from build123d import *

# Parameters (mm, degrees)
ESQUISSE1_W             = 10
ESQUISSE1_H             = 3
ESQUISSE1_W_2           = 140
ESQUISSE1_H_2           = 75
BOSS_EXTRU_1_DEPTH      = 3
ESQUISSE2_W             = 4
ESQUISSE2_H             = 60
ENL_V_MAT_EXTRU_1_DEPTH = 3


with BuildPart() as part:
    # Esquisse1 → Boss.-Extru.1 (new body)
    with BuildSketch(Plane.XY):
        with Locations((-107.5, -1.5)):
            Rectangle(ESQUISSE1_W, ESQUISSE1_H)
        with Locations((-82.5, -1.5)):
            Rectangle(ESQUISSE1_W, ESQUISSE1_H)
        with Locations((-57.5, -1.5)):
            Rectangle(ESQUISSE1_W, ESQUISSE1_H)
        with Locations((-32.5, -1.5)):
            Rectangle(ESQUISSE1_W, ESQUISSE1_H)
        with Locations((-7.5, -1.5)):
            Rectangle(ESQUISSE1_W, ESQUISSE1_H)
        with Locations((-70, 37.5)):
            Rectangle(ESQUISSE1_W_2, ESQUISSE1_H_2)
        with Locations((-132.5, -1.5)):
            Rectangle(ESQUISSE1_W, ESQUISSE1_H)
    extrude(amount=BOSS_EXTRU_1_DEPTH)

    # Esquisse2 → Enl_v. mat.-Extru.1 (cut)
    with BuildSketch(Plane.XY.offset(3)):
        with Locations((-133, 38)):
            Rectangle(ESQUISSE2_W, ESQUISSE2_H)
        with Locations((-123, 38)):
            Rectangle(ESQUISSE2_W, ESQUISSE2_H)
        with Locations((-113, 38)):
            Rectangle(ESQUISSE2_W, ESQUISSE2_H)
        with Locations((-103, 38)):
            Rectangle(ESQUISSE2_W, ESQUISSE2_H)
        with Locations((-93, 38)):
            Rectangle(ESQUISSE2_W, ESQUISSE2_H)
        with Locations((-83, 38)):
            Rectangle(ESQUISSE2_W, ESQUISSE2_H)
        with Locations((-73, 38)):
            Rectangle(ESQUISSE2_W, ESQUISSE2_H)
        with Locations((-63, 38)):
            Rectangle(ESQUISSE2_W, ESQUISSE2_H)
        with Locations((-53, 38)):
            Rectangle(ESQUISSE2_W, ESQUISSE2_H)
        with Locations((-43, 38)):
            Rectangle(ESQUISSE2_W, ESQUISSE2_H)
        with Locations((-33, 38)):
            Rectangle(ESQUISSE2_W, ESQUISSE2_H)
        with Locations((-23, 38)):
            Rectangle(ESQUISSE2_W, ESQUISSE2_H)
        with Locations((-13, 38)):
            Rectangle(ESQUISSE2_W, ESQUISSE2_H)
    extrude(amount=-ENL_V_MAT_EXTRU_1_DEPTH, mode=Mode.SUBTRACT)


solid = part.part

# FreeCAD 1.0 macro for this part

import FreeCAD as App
import Part
import Sketcher

V = App.Vector

doc = App.newDocument("Part")
body = doc.addObject("PartDesign::Body", "Body")

# Sketch on XY plane
sketch1 = body.newObject("Sketcher::SketchObject", "Sketch")
sketch1.AttachmentSupport = (doc.getObject("XY_Plane"), [""])
sketch1.MapMode = "FlatFace"
sketch1.addGeometry([
    Part.LineSegment(V(-112.5, 0, 0), V(-112.5, -3, 0)),  # 0
    Part.LineSegment(V(-112.5, -3, 0), V(-102.5, -3, 0)),  # 1
    Part.LineSegment(V(-102.5, -3, 0), V(-102.5, 0, 0)),  # 2
    Part.LineSegment(V(-102.5, 0, 0), V(-87.5, 0, 0)),  # 3
    Part.LineSegment(V(-87.5, 0, 0), V(-87.5, -3, 0)),  # 4
    Part.LineSegment(V(-87.5, -3, 0), V(-77.5, -3, 0)),  # 5
    Part.LineSegment(V(-77.5, -3, 0), V(-77.5, 0, 0)),  # 6
    Part.LineSegment(V(-77.5, 0, 0), V(-62.5, 0, 0)),  # 7
    Part.LineSegment(V(-62.5, 0, 0), V(-62.5, -3, 0)),  # 8
    Part.LineSegment(V(-62.5, -3, 0), V(-52.5, -3, 0)),  # 9
    Part.LineSegment(V(-52.5, -3, 0), V(-52.5, 0, 0)),  # 10
    Part.LineSegment(V(-52.5, 0, 0), V(-37.5, 0, 0)),  # 11
    Part.LineSegment(V(-37.5, 0, 0), V(-37.5, -3, 0)),  # 12
    Part.LineSegment(V(-37.5, -3, 0), V(-27.5, -3, 0)),  # 13
    Part.LineSegment(V(-27.5, -3, 0), V(-27.5, 0, 0)),  # 14
    Part.LineSegment(V(-27.5, 0, 0), V(-12.5, 0, 0)),  # 15
    Part.LineSegment(V(-12.5, 0, 0), V(-12.5, -3, 0)),  # 16
    Part.LineSegment(V(-12.5, -3, 0), V(-2.5, -3, 0)),  # 17
    Part.LineSegment(V(-2.5, -3, 0), V(-2.5, 0, 0)),  # 18
    Part.LineSegment(V(-2.5, 0, 0), V(0, 0, 0)),  # 19
    Part.LineSegment(V(0, 0, 0), V(0, 75, 0)),  # 20
    Part.LineSegment(V(0, 75, 0), V(-140, 75, 0)),  # 21
    Part.LineSegment(V(-140, 75, 0), V(-140, 0, 0)),  # 22
    Part.LineSegment(V(-140, 0, 0), V(-137.5, 0, 0)),  # 23
    Part.LineSegment(V(-137.5, 0, 0), V(-137.5, -3, 0)),  # 24
    Part.LineSegment(V(-137.5, -3, 0), V(-127.5, -3, 0)),  # 25
    Part.LineSegment(V(-127.5, -3, 0), V(-127.5, 0, 0)),  # 26
    Part.LineSegment(V(-127.5, 0, 0), V(-112.5, 0, 0)),  # 27
], False)
sketch1.addConstraint([
    Sketcher.Constraint("Coincident", 0, 2, 1, 1),
    Sketcher.Constraint("Coincident", 1, 2, 2, 1),
    Sketcher.Constraint("Coincident", 2, 2, 3, 1),
    Sketcher.Constraint("Coincident", 3, 2, 4, 1),
    Sketcher.Constraint("Coincident", 4, 2, 5, 1),
    Sketcher.Constraint("Coincident", 5, 2, 6, 1),
    Sketcher.Constraint("Coincident", 6, 2, 7, 1),
    Sketcher.Constraint("Coincident", 7, 2, 8, 1),
    Sketcher.Constraint("Coincident", 8, 2, 9, 1),
    Sketcher.Constraint("Coincident", 9, 2, 10, 1),
    Sketcher.Constraint("Coincident", 10, 2, 11, 1),
    Sketcher.Constraint("Coincident", 11, 2, 12, 1),
    Sketcher.Constraint("Coincident", 12, 2, 13, 1),
    Sketcher.Constraint("Coincident", 13, 2, 14, 1),
    Sketcher.Constraint("Coincident", 14, 2, 15, 1),
    Sketcher.Constraint("Coincident", 15, 2, 16, 1),
    Sketcher.Constraint("Coincident", 16, 2, 17, 1),
    Sketcher.Constraint("Coincident", 17, 2, 18, 1),
    Sketcher.Constraint("Coincident", 18, 2, 19, 1),
    Sketcher.Constraint("Coincident", 19, 2, 20, 1),
    Sketcher.Constraint("Coincident", 20, 2, 21, 1),
    Sketcher.Constraint("Coincident", 21, 2, 22, 1),
    Sketcher.Constraint("Coincident", 22, 2, 23, 1),
    Sketcher.Constraint("Coincident", 23, 2, 24, 1),
    Sketcher.Constraint("Coincident", 24, 2, 25, 1),
    Sketcher.Constraint("Coincident", 25, 2, 26, 1),
    Sketcher.Constraint("Coincident", 26, 2, 27, 1),
    Sketcher.Constraint("Coincident", 27, 2, 0, 1),
    Sketcher.Constraint("Vertical", 0),
    Sketcher.Constraint("Horizontal", 1),
    Sketcher.Constraint("Vertical", 2),
    Sketcher.Constraint("Horizontal", 3),
    Sketcher.Constraint("Vertical", 4),
    Sketcher.Constraint("Horizontal", 5),
    Sketcher.Constraint("Vertical", 6),
    Sketcher.Constraint("Horizontal", 7),
    Sketcher.Constraint("Vertical", 8),
    Sketcher.Constraint("Horizontal", 9),
    Sketcher.Constraint("Vertical", 10),
    Sketcher.Constraint("Horizontal", 11),
    Sketcher.Constraint("Vertical", 12),
    Sketcher.Constraint("Horizontal", 13),
    Sketcher.Constraint("Vertical", 14),
    Sketcher.Constraint("Horizontal", 15),
    Sketcher.Constraint("Vertical", 16),
    Sketcher.Constraint("Horizontal", 17),
    Sketcher.Constraint("Vertical", 18),
    Sketcher.Constraint("Horizontal", 19),
    Sketcher.Constraint("Vertical", 20),
    Sketcher.Constraint("Horizontal", 21),
    Sketcher.Constraint("Vertical", 22),
    Sketcher.Constraint("Horizontal", 23),
    Sketcher.Constraint("Vertical", 24),
    Sketcher.Constraint("Horizontal", 25),
    Sketcher.Constraint("Vertical", 26),
    Sketcher.Constraint("Horizontal", 27),
    Sketcher.Constraint("Coincident", 19, 2, -1, 1),
    Sketcher.Constraint("PointOnObject", 2, 2, -1),
    Sketcher.Constraint("PointOnObject", 6, 2, -1),
    Sketcher.Constraint("PointOnObject", 10, 2, -1),
    Sketcher.Constraint("PointOnObject", 14, 2, -1),
    Sketcher.Constraint("PointOnObject", 22, 2, -1),
    Sketcher.Constraint("PointOnObject", 26, 2, -1),
    Sketcher.Constraint("Horizontal", 1, 2, 4, 2),
    Sketcher.Constraint("Horizontal", 5, 2, 8, 2),
    Sketcher.Constraint("Horizontal", 9, 2, 12, 2),
    Sketcher.Constraint("Horizontal", 13, 2, 16, 2),
    Sketcher.Constraint("Horizontal", 17, 2, 24, 2),
    Sketcher.Constraint("Equal", 1, 5),
    Sketcher.Constraint("Equal", 3, 7),
    Sketcher.Constraint("Equal", 5, 9),
    Sketcher.Constraint("Equal", 7, 11),
    Sketcher.Constraint("Equal", 9, 13),
    Sketcher.Constraint("Equal", 11, 15),
    Sketcher.Constraint("Equal", 13, 17),
    Sketcher.Constraint("Equal", 19, 23),
    Sketcher.Constraint("Equal", 17, 25),
    Sketcher.Constraint("Equal", 15, 27),
    Sketcher.Constraint("DistanceX", 1, 1, 1, 2, 10.0),
    Sketcher.Constraint("DistanceX", 3, 1, 3, 2, 15.0),
    Sketcher.Constraint("DistanceX", 21, 2, 21, 1, 140.0),
    Sketcher.Constraint("DistanceY", 0, 2, 0, 1, 3.0),
    Sketcher.Constraint("DistanceY", 20, 1, 20, 2, 75.0),
])
pad1 = body.newObject("PartDesign::Pad", "Pad")
pad1.Profile = sketch1
pad1.Length = 3

# Sketch on XY plane
sketch2 = body.newObject("Sketcher::SketchObject", "Sketch001")
sketch2.AttachmentSupport = (doc.getObject("XY_Plane"), [""])
sketch2.MapMode = "FlatFace"
sketch2.AttachmentOffset = App.Placement(V(0, 0, 3), App.Rotation())
sketch2.addGeometry([
    Part.LineSegment(V(-135, 68, 0), V(-135, 8, 0)),  # 0
    Part.LineSegment(V(-135, 8, 0), V(-131, 8, 0)),  # 1
    Part.LineSegment(V(-131, 8, 0), V(-131, 68, 0)),  # 2
    Part.LineSegment(V(-131, 68, 0), V(-135, 68, 0)),  # 3
    Part.LineSegment(V(-125, 68, 0), V(-125, 8, 0)),  # 4
    Part.LineSegment(V(-125, 8, 0), V(-121, 8, 0)),  # 5
    Part.LineSegment(V(-121, 8, 0), V(-121, 68, 0)),  # 6
    Part.LineSegment(V(-121, 68, 0), V(-125, 68, 0)),  # 7
    Part.LineSegment(V(-115, 68, 0), V(-115, 8, 0)),  # 8
    Part.LineSegment(V(-115, 8, 0), V(-111, 8, 0)),  # 9
    Part.LineSegment(V(-111, 8, 0), V(-111, 68, 0)),  # 10
    Part.LineSegment(V(-111, 68, 0), V(-115, 68, 0)),  # 11
    Part.LineSegment(V(-105, 68, 0), V(-105, 8, 0)),  # 12
    Part.LineSegment(V(-105, 8, 0), V(-101, 8, 0)),  # 13
    Part.LineSegment(V(-101, 8, 0), V(-101, 68, 0)),  # 14
    Part.LineSegment(V(-101, 68, 0), V(-105, 68, 0)),  # 15
    Part.LineSegment(V(-95, 68, 0), V(-95, 8, 0)),  # 16
    Part.LineSegment(V(-95, 8, 0), V(-91, 8, 0)),  # 17
    Part.LineSegment(V(-91, 8, 0), V(-91, 68, 0)),  # 18
    Part.LineSegment(V(-91, 68, 0), V(-95, 68, 0)),  # 19
    Part.LineSegment(V(-85, 68, 0), V(-85, 8, 0)),  # 20
    Part.LineSegment(V(-85, 8, 0), V(-81, 8, 0)),  # 21
    Part.LineSegment(V(-81, 8, 0), V(-81, 68, 0)),  # 22
    Part.LineSegment(V(-81, 68, 0), V(-85, 68, 0)),  # 23
    Part.LineSegment(V(-75, 68, 0), V(-75, 8, 0)),  # 24
    Part.LineSegment(V(-75, 8, 0), V(-71, 8, 0)),  # 25
    Part.LineSegment(V(-71, 8, 0), V(-71, 68, 0)),  # 26
    Part.LineSegment(V(-71, 68, 0), V(-75, 68, 0)),  # 27
    Part.LineSegment(V(-65, 68, 0), V(-65, 8, 0)),  # 28
    Part.LineSegment(V(-65, 8, 0), V(-61, 8, 0)),  # 29
    Part.LineSegment(V(-61, 8, 0), V(-61, 68, 0)),  # 30
    Part.LineSegment(V(-61, 68, 0), V(-65, 68, 0)),  # 31
    Part.LineSegment(V(-55, 68, 0), V(-55, 8, 0)),  # 32
    Part.LineSegment(V(-55, 8, 0), V(-51, 8, 0)),  # 33
    Part.LineSegment(V(-51, 8, 0), V(-51, 68, 0)),  # 34
    Part.LineSegment(V(-51, 68, 0), V(-55, 68, 0)),  # 35
    Part.LineSegment(V(-45, 68, 0), V(-45, 8, 0)),  # 36
    Part.LineSegment(V(-45, 8, 0), V(-41, 8, 0)),  # 37
    Part.LineSegment(V(-41, 8, 0), V(-41, 68, 0)),  # 38
    Part.LineSegment(V(-41, 68, 0), V(-45, 68, 0)),  # 39
    Part.LineSegment(V(-35, 68, 0), V(-35, 8, 0)),  # 40
    Part.LineSegment(V(-35, 8, 0), V(-31, 8, 0)),  # 41
    Part.LineSegment(V(-31, 8, 0), V(-31, 68, 0)),  # 42
    Part.LineSegment(V(-31, 68, 0), V(-35, 68, 0)),  # 43
    Part.LineSegment(V(-25, 68, 0), V(-25, 8, 0)),  # 44
    Part.LineSegment(V(-25, 8, 0), V(-21, 8, 0)),  # 45
    Part.LineSegment(V(-21, 8, 0), V(-21, 68, 0)),  # 46
    Part.LineSegment(V(-21, 68, 0), V(-25, 68, 0)),  # 47
    Part.LineSegment(V(-15, 68, 0), V(-15, 8, 0)),  # 48
    Part.LineSegment(V(-15, 8, 0), V(-11, 8, 0)),  # 49
    Part.LineSegment(V(-11, 8, 0), V(-11, 68, 0)),  # 50
    Part.LineSegment(V(-11, 68, 0), V(-15, 68, 0)),  # 51
], False)
sketch2.addConstraint([
    Sketcher.Constraint("Coincident", 0, 2, 1, 1),
    Sketcher.Constraint("Coincident", 1, 2, 2, 1),
    Sketcher.Constraint("Coincident", 2, 2, 3, 1),
    Sketcher.Constraint("Coincident", 3, 2, 0, 1),
    Sketcher.Constraint("Coincident", 4, 2, 5, 1),
    Sketcher.Constraint("Coincident", 5, 2, 6, 1),
    Sketcher.Constraint("Coincident", 6, 2, 7, 1),
    Sketcher.Constraint("Coincident", 7, 2, 4, 1),
    Sketcher.Constraint("Coincident", 8, 2, 9, 1),
    Sketcher.Constraint("Coincident", 9, 2, 10, 1),
    Sketcher.Constraint("Coincident", 10, 2, 11, 1),
    Sketcher.Constraint("Coincident", 11, 2, 8, 1),
    Sketcher.Constraint("Coincident", 12, 2, 13, 1),
    Sketcher.Constraint("Coincident", 13, 2, 14, 1),
    Sketcher.Constraint("Coincident", 14, 2, 15, 1),
    Sketcher.Constraint("Coincident", 15, 2, 12, 1),
    Sketcher.Constraint("Coincident", 16, 2, 17, 1),
    Sketcher.Constraint("Coincident", 17, 2, 18, 1),
    Sketcher.Constraint("Coincident", 18, 2, 19, 1),
    Sketcher.Constraint("Coincident", 19, 2, 16, 1),
    Sketcher.Constraint("Coincident", 20, 2, 21, 1),
    Sketcher.Constraint("Coincident", 21, 2, 22, 1),
    Sketcher.Constraint("Coincident", 22, 2, 23, 1),
    Sketcher.Constraint("Coincident", 23, 2, 20, 1),
    Sketcher.Constraint("Coincident", 24, 2, 25, 1),
    Sketcher.Constraint("Coincident", 25, 2, 26, 1),
    Sketcher.Constraint("Coincident", 26, 2, 27, 1),
    Sketcher.Constraint("Coincident", 27, 2, 24, 1),
    Sketcher.Constraint("Coincident", 28, 2, 29, 1),
    Sketcher.Constraint("Coincident", 29, 2, 30, 1),
    Sketcher.Constraint("Coincident", 30, 2, 31, 1),
    Sketcher.Constraint("Coincident", 31, 2, 28, 1),
    Sketcher.Constraint("Coincident", 32, 2, 33, 1),
    Sketcher.Constraint("Coincident", 33, 2, 34, 1),
    Sketcher.Constraint("Coincident", 34, 2, 35, 1),
    Sketcher.Constraint("Coincident", 35, 2, 32, 1),
    Sketcher.Constraint("Coincident", 36, 2, 37, 1),
    Sketcher.Constraint("Coincident", 37, 2, 38, 1),
    Sketcher.Constraint("Coincident", 38, 2, 39, 1),
    Sketcher.Constraint("Coincident", 39, 2, 36, 1),
    Sketcher.Constraint("Coincident", 40, 2, 41, 1),
    Sketcher.Constraint("Coincident", 41, 2, 42, 1),
    Sketcher.Constraint("Coincident", 42, 2, 43, 1),
    Sketcher.Constraint("Coincident", 43, 2, 40, 1),
    Sketcher.Constraint("Coincident", 44, 2, 45, 1),
    Sketcher.Constraint("Coincident", 45, 2, 46, 1),
    Sketcher.Constraint("Coincident", 46, 2, 47, 1),
    Sketcher.Constraint("Coincident", 47, 2, 44, 1),
    Sketcher.Constraint("Coincident", 48, 2, 49, 1),
    Sketcher.Constraint("Coincident", 49, 2, 50, 1),
    Sketcher.Constraint("Coincident", 50, 2, 51, 1),
    Sketcher.Constraint("Coincident", 51, 2, 48, 1),
    Sketcher.Constraint("Vertical", 0),
    Sketcher.Constraint("Horizontal", 1),
    Sketcher.Constraint("Vertical", 2),
    Sketcher.Constraint("Horizontal", 3),
    Sketcher.Constraint("Vertical", 4),
    Sketcher.Constraint("Horizontal", 5),
    Sketcher.Constraint("Vertical", 6),
    Sketcher.Constraint("Horizontal", 7),
    Sketcher.Constraint("Vertical", 8),
    Sketcher.Constraint("Horizontal", 9),
    Sketcher.Constraint("Vertical", 10),
    Sketcher.Constraint("Horizontal", 11),
    Sketcher.Constraint("Vertical", 12),
    Sketcher.Constraint("Horizontal", 13),
    Sketcher.Constraint("Vertical", 14),
    Sketcher.Constraint("Horizontal", 15),
    Sketcher.Constraint("Vertical", 16),
    Sketcher.Constraint("Horizontal", 17),
    Sketcher.Constraint("Vertical", 18),
    Sketcher.Constraint("Horizontal", 19),
    Sketcher.Constraint("Vertical", 20),
    Sketcher.Constraint("Horizontal", 21),
    Sketcher.Constraint("Vertical", 22),
    Sketcher.Constraint("Horizontal", 23),
    Sketcher.Constraint("Vertical", 24),
    Sketcher.Constraint("Horizontal", 25),
    Sketcher.Constraint("Vertical", 26),
    Sketcher.Constraint("Horizontal", 27),
    Sketcher.Constraint("Vertical", 28),
    Sketcher.Constraint("Horizontal", 29),
    Sketcher.Constraint("Vertical", 30),
    Sketcher.Constraint("Horizontal", 31),
    Sketcher.Constraint("Vertical", 32),
    Sketcher.Constraint("Horizontal", 33),
    Sketcher.Constraint("Vertical", 34),
    Sketcher.Constraint("Horizontal", 35),
    Sketcher.Constraint("Vertical", 36),
    Sketcher.Constraint("Horizontal", 37),
    Sketcher.Constraint("Vertical", 38),
    Sketcher.Constraint("Horizontal", 39),
    Sketcher.Constraint("Vertical", 40),
    Sketcher.Constraint("Horizontal", 41),
    Sketcher.Constraint("Vertical", 42),
    Sketcher.Constraint("Horizontal", 43),
    Sketcher.Constraint("Vertical", 44),
    Sketcher.Constraint("Horizontal", 45),
    Sketcher.Constraint("Vertical", 46),
    Sketcher.Constraint("Horizontal", 47),
    Sketcher.Constraint("Vertical", 48),
    Sketcher.Constraint("Horizontal", 49),
    Sketcher.Constraint("Vertical", 50),
    Sketcher.Constraint("Horizontal", 51),
    Sketcher.Constraint("Horizontal", 1, 2, 4, 2),
    Sketcher.Constraint("Horizontal", 3, 2, 6, 2),
    Sketcher.Constraint("Horizontal", 5, 2, 8, 2),
    Sketcher.Constraint("Horizontal", 7, 2, 10, 2),
    Sketcher.Constraint("Horizontal", 9, 2, 12, 2),
    Sketcher.Constraint("Horizontal", 11, 2, 14, 2),
    Sketcher.Constraint("Horizontal", 13, 2, 16, 2),
    Sketcher.Constraint("Horizontal", 15, 2, 18, 2),
    Sketcher.Constraint("Horizontal", 17, 2, 20, 2),
    Sketcher.Constraint("Horizontal", 19, 2, 22, 2),
    Sketcher.Constraint("Horizontal", 21, 2, 24, 2),
    Sketcher.Constraint("Horizontal", 23, 2, 26, 2),
    Sketcher.Constraint("Horizontal", 25, 2, 28, 2),
    Sketcher.Constraint("Horizontal", 27, 2, 30, 2),
    Sketcher.Constraint("Horizontal", 29, 2, 32, 2),
    Sketcher.Constraint("Horizontal", 31, 2, 34, 2),
    Sketcher.Constraint("Horizontal", 33, 2, 36, 2),
    Sketcher.Constraint("Horizontal", 35, 2, 38, 2),
    Sketcher.Constraint("Horizontal", 37, 2, 40, 2),
    Sketcher.Constraint("Horizontal", 39, 2, 42, 2),
    Sketcher.Constraint("Horizontal", 41, 2, 44, 2),
    Sketcher.Constraint("Horizontal", 43, 2, 46, 2),
    Sketcher.Constraint("Horizontal", 45, 2, 48, 2),
    Sketcher.Constraint("Horizontal", 47, 2, 50, 2),
    Sketcher.Constraint("Equal", 3, 5),
    Sketcher.Constraint("Equal", 7, 9),
    Sketcher.Constraint("Equal", 11, 13),
    Sketcher.Constraint("Equal", 15, 17),
    Sketcher.Constraint("Equal", 19, 21),
    Sketcher.Constraint("Equal", 23, 25),
    Sketcher.Constraint("Equal", 27, 29),
    Sketcher.Constraint("Equal", 31, 33),
    Sketcher.Constraint("Equal", 35, 37),
    Sketcher.Constraint("Equal", 39, 41),
    Sketcher.Constraint("Equal", 43, 45),
    Sketcher.Constraint("Equal", 47, 49),
    Sketcher.Constraint("DistanceX", 1, 1, 1, 2, 4.0),
    Sketcher.Constraint("DistanceY", 0, 2, 0, 1, 60.0),
    Sketcher.Constraint("DistanceX", 0, 2, -1, 1, 135.0),
    Sketcher.Constraint("DistanceY", -1, 1, 0, 2, 8.0),
    Sketcher.Constraint("DistanceX", 4, 2, -1, 1, 125.0),
    Sketcher.Constraint("DistanceX", 8, 2, -1, 1, 115.0),
    Sketcher.Constraint("DistanceX", 12, 2, -1, 1, 105.0),
    Sketcher.Constraint("DistanceX", 16, 2, -1, 1, 95.0),
    Sketcher.Constraint("DistanceX", 20, 2, -1, 1, 85.0),
    Sketcher.Constraint("DistanceX", 24, 2, -1, 1, 75.0),
    Sketcher.Constraint("DistanceX", 28, 2, -1, 1, 65.0),
    Sketcher.Constraint("DistanceX", 32, 2, -1, 1, 55.0),
    Sketcher.Constraint("DistanceX", 36, 2, -1, 1, 45.0),
    Sketcher.Constraint("DistanceX", 40, 2, -1, 1, 35.0),
    Sketcher.Constraint("DistanceX", 44, 2, -1, 1, 25.0),
    Sketcher.Constraint("DistanceX", 48, 2, -1, 1, 15.0),
])
pocket1 = body.newObject("PartDesign::Pocket", "Pocket")
pocket1.Profile = sketch2
pocket1.Length = 3

doc.recompute()
